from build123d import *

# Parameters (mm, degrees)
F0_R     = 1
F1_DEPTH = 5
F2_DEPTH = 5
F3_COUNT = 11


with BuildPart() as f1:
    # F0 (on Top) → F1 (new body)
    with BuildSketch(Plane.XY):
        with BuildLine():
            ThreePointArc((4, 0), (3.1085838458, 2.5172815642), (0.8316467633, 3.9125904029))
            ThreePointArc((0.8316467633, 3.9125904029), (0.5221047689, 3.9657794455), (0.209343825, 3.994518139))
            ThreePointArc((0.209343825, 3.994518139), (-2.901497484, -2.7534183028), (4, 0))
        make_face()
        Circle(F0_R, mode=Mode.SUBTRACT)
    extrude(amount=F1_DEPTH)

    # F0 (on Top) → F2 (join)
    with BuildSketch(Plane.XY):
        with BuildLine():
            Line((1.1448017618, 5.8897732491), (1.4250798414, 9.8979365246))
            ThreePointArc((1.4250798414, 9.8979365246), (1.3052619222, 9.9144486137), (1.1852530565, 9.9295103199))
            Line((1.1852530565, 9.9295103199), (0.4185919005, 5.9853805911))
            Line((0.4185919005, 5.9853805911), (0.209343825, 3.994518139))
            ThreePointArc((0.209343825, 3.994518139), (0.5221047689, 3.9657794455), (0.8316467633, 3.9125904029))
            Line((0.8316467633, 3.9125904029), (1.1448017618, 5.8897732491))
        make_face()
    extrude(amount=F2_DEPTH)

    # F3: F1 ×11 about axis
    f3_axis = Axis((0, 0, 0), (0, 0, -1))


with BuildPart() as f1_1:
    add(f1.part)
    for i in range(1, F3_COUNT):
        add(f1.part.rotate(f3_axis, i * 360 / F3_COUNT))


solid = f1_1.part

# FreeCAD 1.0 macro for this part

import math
import FreeCAD as App
import Part
import Sketcher
from FreeCAD import Vector
Q = App.Units.Quantity

doc = App.newDocument("Part")
params = doc.addObject("Spreadsheet::Sheet", "Params")
for row, (alias, value) in enumerate([
    ("sketch1_diameter", "2 mm"),
    ("sketch1_radius", "4 mm"),
    ("pad1_length", "5 mm"),
    ("sketch2_radius", "10.000001 mm"),
    ("sketch2_radius2", "4 mm"),
    ("pad2_length", "5 mm"),
], start=1):
    params.set(f"A{row}", alias)
    params.set(f"B{row}", "=" + value)
    params.setAlias(f"B{row}", alias)

body = doc.addObject("PartDesign::Body", "Body")

sketch1 = body.newObject("Sketcher::SketchObject", "Sketch")
sketch1.AttachmentSupport = (doc.getObject("XY_Plane"), [""])
sketch1.MapMode = "FlatFace"
sketch1.addGeometry(Part.ArcOfCircle(Part.Circle(Vector(0, 0, 0), Vector(0, 0, 1), 4), math.radians(0), math.radians(78)), False)
sketch1.addGeometry(Part.ArcOfCircle(Part.Circle(Vector(0, 0, 0), Vector(0, 0, 1), 4), math.radians(78), math.radians(87)), False)
sketch1.addGeometry(Part.ArcOfCircle(Part.Circle(Vector(0, 0, 0), Vector(0, 0, 1), 4), math.radians(87), math.radians(360)), False)
sketch1.addGeometry(Part.Circle(Vector(0, 0, 0), Vector(0, 0, 1), 1), False)
sketch1.addConstraint(Sketcher.Constraint("Tangent", 0, 2, 1, 1))
sketch1.addConstraint(Sketcher.Constraint("Tangent", 1, 2, 2, 1))
sketch1.addConstraint(Sketcher.Constraint("Tangent", 2, 2, 0, 1))
sketch1.addConstraint(Sketcher.Constraint("Coincident", 0, 3, -1, 1))
sketch1.addConstraint(Sketcher.Constraint("Coincident", 3, 3, -1, 1))
sketch1.addConstraint(Sketcher.Constraint("PointOnObject", 2, 2, -1))
sketch1.addConstraint(Sketcher.Constraint("Diameter", 3, 2.0))
sketch1.addConstraint(Sketcher.Constraint("Radius", 0, 4.0))
sketch1.addConstraint(Sketcher.Constraint("DistanceY", -1, 1, 0, 2, 3.91259))
sketch1.addConstraint(Sketcher.Constraint("DistanceY", -1, 1, 1, 2, 3.994518))
sketch1.setExpression("Constraints[6]", "Params.sketch1_diameter")
sketch1.setExpression("Constraints[7]", "Params.sketch1_radius")
pad1 = body.newObject("PartDesign::Pad", "Pad")
pad1.Profile = sketch1
pad1.setExpression("Length", "Params.pad1_length")

sketch2 = body.newObject("Sketcher::SketchObject", "Sketch001")
sketch2.AttachmentSupport = (doc.getObject("XY_Plane"), [""])
sketch2.MapMode = "FlatFace"
sketch2.addGeometry(Part.LineSegment(Vector(1.14, 5.89, 0), Vector(1.43, 9.9, 0)), False)
sketch2.addGeometry(Part.ArcOfCircle(Part.Circle(Vector(0, 0, 0), Vector(0, 0, 1), 10), math.radians(81.81), math.radians(83.19)), False)
sketch2.addGeometry(Part.LineSegment(Vector(1.19, 9.93, 0), Vector(0.42, 5.99, 0)), False)
sketch2.addGeometry(Part.LineSegment(Vector(0.42, 5.99, 0), Vector(0.21, 3.99, 0)), False)
sketch2.addGeometry(Part.ArcOfCircle(Part.Circle(Vector(0, 0, 0), Vector(0, 0, 1), 4), math.radians(78), math.radians(87)), False)
sketch2.addGeometry(Part.LineSegment(Vector(0.83, 3.91, 0), Vector(1.14, 5.89, 0)), False)
sketch2.addConstraint(Sketcher.Constraint("Coincident", 0, 2, 1, 1))
sketch2.addConstraint(Sketcher.Constraint("Coincident", 1, 2, 2, 1))
sketch2.addConstraint(Sketcher.Constraint("Coincident", 2, 2, 3, 1))
sketch2.addConstraint(Sketcher.Constraint("Coincident", 3, 2, 4, 2))
sketch2.addConstraint(Sketcher.Constraint("Coincident", 4, 1, 5, 1))
sketch2.addConstraint(Sketcher.Constraint("Coincident", 5, 2, 0, 1))
sketch2.addConstraint(Sketcher.Constraint("Coincident", 1, 3, -1, 1))
sketch2.addConstraint(Sketcher.Constraint("Coincident", 4, 3, -1, 1))
sketch2.addConstraint(Sketcher.Constraint("Equal", 0, 2))
sketch2.addConstraint(Sketcher.Constraint("Equal", 3, 5))
sketch2.addConstraint(Sketcher.Constraint("Radius", 1, 10.000001))
sketch2.addConstraint(Sketcher.Constraint("Radius", 4, 4.0))
sketch2.addConstraint(Sketcher.Constraint("Angle", 0, Q("86 deg")))
sketch2.addConstraint(Sketcher.Constraint("Angle", 2, Q("-101 deg")))
sketch2.addConstraint(Sketcher.Constraint("Angle", 3, Q("-96 deg")))
sketch2.addConstraint(Sketcher.Constraint("Angle", 5, Q("81 deg")))
sketch2.addConstraint(Sketcher.Constraint("DistanceX", -1, 1, 5, 2, 1.144802))
sketch2.addConstraint(Sketcher.Constraint("Distance", 0, 4.017951))
sketch2.setExpression("Constraints[10]", "Params.sketch2_radius")
sketch2.setExpression("Constraints[11]", "Params.sketch2_radius2")
pad2 = body.newObject("PartDesign::Pad", "Pad001")
pad2.Profile = sketch2
pad2.setExpression("Length", "Params.pad2_length")
body2 = doc.addObject("PartDesign::Body", "Body001")
doc.recompute()

body2.BaseFeature = body
doc.recompute()

body3 = doc.addObject("PartDesign::Body", "Body002")
body3.BaseFeature = body
body3.Placement = App.Placement(Vector(0, 0, 0), App.Rotation(Vector(0, 0, -1), 32.727273))
boolean = body2.newObject("PartDesign::Boolean", "Boolean")
boolean.Type = "Fuse"
boolean.addObjects([body3])
doc.recompute()

body4 = doc.addObject("PartDesign::Body", "Body003")
body4.BaseFeature = body
body4.Placement = App.Placement(Vector(0, 0, 0), App.Rotation(Vector(0, 0, -1), 65.454545))
boolean2 = body2.newObject("PartDesign::Boolean", "Boolean001")
boolean2.Type = "Fuse"
boolean2.addObjects([body4])
doc.recompute()

body5 = doc.addObject("PartDesign::Body", "Body004")
body5.BaseFeature = body
body5.Placement = App.Placement(Vector(0, 0, 0), App.Rotation(Vector(0, 0, -1), 98.181818))
boolean3 = body2.newObject("PartDesign::Boolean", "Boolean002")
boolean3.Type = "Fuse"
boolean3.addObjects([body5])
doc.recompute()

body6 = doc.addObject("PartDesign::Body", "Body005")
body6.BaseFeature = body
body6.Placement = App.Placement(Vector(0, 0, 0), App.Rotation(Vector(0, 0, -1), 130.909091))
boolean4 = body2.newObject("PartDesign::Boolean", "Boolean003")
boolean4.Type = "Fuse"
boolean4.addObjects([body6])
doc.recompute()

body7 = doc.addObject("PartDesign::Body", "Body006")
body7.BaseFeature = body
body7.Placement = App.Placement(Vector(0, 0, 0), App.Rotation(Vector(0, 0, -1), 163.636364))
boolean5 = body2.newObject("PartDesign::Boolean", "Boolean004")
boolean5.Type = "Fuse"
boolean5.addObjects([body7])
doc.recompute()

body8 = doc.addObject("PartDesign::Body", "Body007")
body8.BaseFeature = body
body8.Placement = App.Placement(Vector(0, 0, 0), App.Rotation(Vector(0, 0, -1), 196.363636))
boolean6 = body2.newObject("PartDesign::Boolean", "Boolean005")
boolean6.Type = "Fuse"
boolean6.addObjects([body8])
doc.recompute()

body9 = doc.addObject("PartDesign::Body", "Body008")
body9.BaseFeature = body
body9.Placement = App.Placement(Vector(0, 0, 0), App.Rotation(Vector(0, 0, -1), 229.090909))
boolean7 = body2.newObject("PartDesign::Boolean", "Boolean006")
boolean7.Type = "Fuse"
boolean7.addObjects([body9])
doc.recompute()

body10 = doc.addObject("PartDesign::Body", "Body009")
body10.BaseFeature = body
body10.Placement = App.Placement(Vector(0, 0, 0), App.Rotation(Vector(0, 0, -1), 261.818182))
boolean8 = body2.newObject("PartDesign::Boolean", "Boolean007")
boolean8.Type = "Fuse"
boolean8.addObjects([body10])
doc.recompute()

body11 = doc.addObject("PartDesign::Body", "Body010")
body11.BaseFeature = body
body11.Placement = App.Placement(Vector(0, 0, 0), App.Rotation(Vector(0, 0, -1), 294.545455))
boolean9 = body2.newObject("PartDesign::Boolean", "Boolean008")
boolean9.Type = "Fuse"
boolean9.addObjects([body11])
doc.recompute()

body.Placement = App.Placement(Vector(0, 0, 0), App.Rotation(Vector(0, 0, -1), 327.272727))
boolean10 = body2.newObject("PartDesign::Boolean", "Boolean009")
boolean10.Type = "Fuse"
boolean10.addObjects([body])

doc.recompute()
